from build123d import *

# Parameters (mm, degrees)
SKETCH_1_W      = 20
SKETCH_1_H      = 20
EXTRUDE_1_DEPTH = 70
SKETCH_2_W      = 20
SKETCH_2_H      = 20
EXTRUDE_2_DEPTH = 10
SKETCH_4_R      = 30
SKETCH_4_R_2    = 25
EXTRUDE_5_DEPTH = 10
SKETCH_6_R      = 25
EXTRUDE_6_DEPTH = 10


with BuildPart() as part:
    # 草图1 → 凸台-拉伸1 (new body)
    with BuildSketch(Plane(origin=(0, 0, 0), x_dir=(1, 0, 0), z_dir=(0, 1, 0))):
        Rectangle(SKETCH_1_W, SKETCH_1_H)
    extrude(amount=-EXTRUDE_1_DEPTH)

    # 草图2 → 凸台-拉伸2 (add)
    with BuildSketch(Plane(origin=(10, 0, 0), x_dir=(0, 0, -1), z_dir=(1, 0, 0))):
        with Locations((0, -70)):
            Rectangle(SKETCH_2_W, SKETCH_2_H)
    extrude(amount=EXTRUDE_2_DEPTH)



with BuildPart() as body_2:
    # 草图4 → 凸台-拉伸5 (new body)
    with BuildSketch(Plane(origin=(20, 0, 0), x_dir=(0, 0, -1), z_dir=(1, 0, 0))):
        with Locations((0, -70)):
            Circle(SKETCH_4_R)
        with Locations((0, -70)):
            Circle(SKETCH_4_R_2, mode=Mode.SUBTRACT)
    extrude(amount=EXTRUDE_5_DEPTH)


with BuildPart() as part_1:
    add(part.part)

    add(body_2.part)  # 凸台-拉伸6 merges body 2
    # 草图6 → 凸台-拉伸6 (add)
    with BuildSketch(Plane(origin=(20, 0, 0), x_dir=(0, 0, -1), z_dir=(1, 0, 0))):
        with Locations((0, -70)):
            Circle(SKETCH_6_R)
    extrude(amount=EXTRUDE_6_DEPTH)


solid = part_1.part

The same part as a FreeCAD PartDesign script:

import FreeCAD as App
import Part
import Sketcher
from FreeCAD import Vector

doc = App.newDocument("Part")
body = doc.addObject("PartDesign::Body", "Body")

sketch1 = body.newObject("Sketcher::SketchObject", "Sketch")
sketch1.AttachmentSupport = (doc.getObject("XZ_Plane"), [""])
sketch1.MapMode = "FlatFace"
sketch1.addGeometry([
    Part.LineSegment(Vector(-10, -10, 0), Vector(-10, 10, 0)),
    Part.LineSegment(Vector(-10, 10, 0), Vector(10, 10, 0)),
    Part.LineSegment(Vector(10, 10, 0), Vector(10, -10, 0)),
    Part.LineSegment(Vector(10, -10, 0), Vector(-10, -10, 0)),
], False)
sketch1.addConstraint([
    Sketcher.Constraint("Coincident", 0, 2, 1, 1),
    Sketcher.Constraint("Coincident", 1, 2, 2, 1),
    Sketcher.Constraint("Coincident", 2, 2, 3, 1),
    Sketcher.Constraint("Coincident", 3, 2, 0, 1),
    Sketcher.Constraint("Vertical", 0),
    Sketcher.Constraint("Horizontal", 1),
    Sketcher.Constraint("Vertical", 2),
    Sketcher.Constraint("Horizontal", 3),
    Sketcher.Constraint("Symmetric", 0, 2, 2, 2, -1, 1),
    Sketcher.Constraint("Equal", 3, 0),
    Sketcher.Constraint("DistanceX", 1, 1, 1, 2, 20.0),
])
pad1 = body.newObject("PartDesign::Pad", "Pad")
pad1.Profile = sketch1
pad1.Length = 70

sketch2 = body.newObject("Sketcher::SketchObject", "Sketch001")
sketch2.AttachmentSupport = (doc.getObject("YZ_Plane"), [""])
sketch2.MapMode = "FlatFace"
sketch2.AttachmentOffset = App.Placement(Vector(0, 0, 10), App.Rotation())
sketch2.addGeometry([
    Part.LineSegment(Vector(-60, 10, 0), Vector(-80, 10, 0)),
    Part.LineSegment(Vector(-80, 10, 0), Vector(-80, -10, 0)),
    Part.LineSegment(Vector(-80, -10, 0), Vector(-60, -10, 0)),
    Part.LineSegment(Vector(-60, -10, 0), Vector(-60, 10, 0)),
], False)
sketch2.addConstraint([
    Sketcher.Constraint("Coincident", 0, 2, 1, 1),
    Sketcher.Constraint("Coincident", 1, 2, 2, 1),
    Sketcher.Constraint("Coincident", 2, 2, 3, 1),
    Sketcher.Constraint("Coincident", 3, 2, 0, 1),
    Sketcher.Constraint("Horizontal", 0),
    Sketcher.Constraint("Vertical", 1),
    Sketcher.Constraint("Horizontal", 2),
    Sketcher.Constraint("Vertical", 3),
    Sketcher.Constraint("Equal", 2, 1),
    Sketcher.Constraint("DistanceX", 0, 2, 0, 1, 20.0),
    Sketcher.Constraint("DistanceX", 0, 2, -1, 1, 80.0),
    Sketcher.Constraint("DistanceY", -1, 1, 0, 2, 10.0),
])
pad2 = body.newObject("PartDesign::Pad", "Pad001")
pad2.Profile = sketch2
pad2.Length = 10
body2 = doc.addObject("PartDesign::Body", "Body001")

sketch3 = body2.newObject("Sketcher::SketchObject", "Sketch002")
sketch3.AttachmentSupport = (doc.getObject("YZ_Plane001"), [""])
sketch3.MapMode = "FlatFace"
sketch3.AttachmentOffset = App.Placement(Vector(0, 0, 20), App.Rotation())
sketch3.addGeometry([
    Part.Circle(Vector(-70, 0, 0), Vector(0, 0, 1), 30),
    Part.Circle(Vector(-70, 0, 0), Vector(0, 0, 1), 25),
], False)
sketch3.addConstraint([
    Sketcher.Constraint("Coincident", 1, 3, 0, 3),
    Sketcher.Constraint("PointOnObject", 0, 3, -1),
    Sketcher.Constraint("Diameter", 0, 60.0),
    Sketcher.Constraint("Diameter", 1, 50.0),
    Sketcher.Constraint("DistanceX", 0, 3, -1, 1, 70.0),
])
pad3 = body2.newObject("PartDesign::Pad", "Pad002")
pad3.Profile = sketch3
pad3.Length = 10
body.AllowCompound = True
doc.recompute()

boolean = body.newObject("PartDesign::Boolean", "Boolean")
boolean.Type = "Fuse"
boolean.addObjects([body2])

sketch4 = body.newObject("Sketcher::SketchObject", "Sketch003")
sketch4.AttachmentSupport = (doc.getObject("YZ_Plane"), [""])
sketch4.MapMode = "FlatFace"
sketch4.AttachmentOffset = App.Placement(Vector(0, 0, 20), App.Rotation())
sketch4.addGeometry(Part.Circle(Vector(-70, 0, 0), Vector(0, 0, 1), 25), False)
sketch4.addConstraint([
    Sketcher.Constraint("PointOnObject", 0, 3, -1),
    Sketcher.Constraint("Diameter", 0, 50.0),
    Sketcher.Constraint("DistanceX", 0, 3, -1, 1, 70.0),
])
pad4 = body.newObject("PartDesign::Pad", "Pad003")
pad4.Profile = sketch4
pad4.Length = 10

doc.recompute()
